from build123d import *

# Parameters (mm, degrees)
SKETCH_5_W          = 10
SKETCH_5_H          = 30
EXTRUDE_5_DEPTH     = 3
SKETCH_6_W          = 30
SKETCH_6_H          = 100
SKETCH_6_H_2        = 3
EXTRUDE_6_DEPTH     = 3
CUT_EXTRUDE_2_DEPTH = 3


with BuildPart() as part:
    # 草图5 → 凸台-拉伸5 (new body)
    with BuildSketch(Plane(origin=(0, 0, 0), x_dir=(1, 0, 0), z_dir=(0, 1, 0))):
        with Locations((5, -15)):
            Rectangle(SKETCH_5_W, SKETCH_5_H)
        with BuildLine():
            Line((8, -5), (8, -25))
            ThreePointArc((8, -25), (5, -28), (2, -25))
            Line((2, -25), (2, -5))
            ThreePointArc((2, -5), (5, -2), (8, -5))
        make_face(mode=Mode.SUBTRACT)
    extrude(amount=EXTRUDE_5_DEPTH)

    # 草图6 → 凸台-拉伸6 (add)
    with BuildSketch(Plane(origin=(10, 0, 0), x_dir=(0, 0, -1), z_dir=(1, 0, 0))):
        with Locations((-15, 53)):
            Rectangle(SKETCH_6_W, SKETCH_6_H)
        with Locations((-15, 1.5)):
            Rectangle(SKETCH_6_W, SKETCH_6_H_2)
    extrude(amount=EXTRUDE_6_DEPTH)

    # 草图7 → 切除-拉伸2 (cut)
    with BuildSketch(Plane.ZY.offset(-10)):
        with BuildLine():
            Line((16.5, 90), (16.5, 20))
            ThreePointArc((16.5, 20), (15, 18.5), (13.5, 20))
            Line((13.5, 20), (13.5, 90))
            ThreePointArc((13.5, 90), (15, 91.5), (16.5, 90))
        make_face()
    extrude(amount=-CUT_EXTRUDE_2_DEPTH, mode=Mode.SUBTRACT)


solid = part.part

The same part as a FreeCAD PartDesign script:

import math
import FreeCAD as App
import Part
import Sketcher
from FreeCAD import Vector
Q = App.Units.Quantity


def add_polygon(sketch, points):
    """Adds a closed chain of lines whose ends are joined by coincident constraints."""
    first, n = sketch.GeometryCount, len(points)
    for a, b in zip(points, points[1:] + points[:1]):
        sketch.addGeometry(Part.LineSegment(App.Vector(*a, 0), App.Vector(*b, 0)), False)
    for i in range(n):
        sketch.addConstraint(Sketcher.Constraint("Coincident", first + i, 2, first + (i + 1) % n, 1))

doc = App.newDocument("Part")
params = doc.addObject("Spreadsheet::Sheet", "Params")
for row, (alias, value) in enumerate([
    ("sketch1_radius", "3 mm"),
    ("sketch1_width", "10 mm"),
    ("sketch1_height", "30 mm"),
    ("sketch1_height2", "20 mm"),
    ("pad1_length", "3 mm"),
    ("sketch2_width", "103 mm"),
    ("sketch2_height", "30 mm"),
    ("pad2_length", "3 mm"),
    ("sketch3_radius", "1.5 mm"),
    ("sketch3_width", "70 mm"),
    ("pocket1_length", "3 mm"),
], start=1):
    params.set(f"A{row}", alias)
    params.set(f"B{row}", "=" + value)
    params.setAlias(f"B{row}", alias)

body = doc.addObject("PartDesign::Body", "Body")

# Sketch on XZ plane
sketch1 = body.newObject("Sketcher::SketchObject", "Sketch")
sketch1.AttachmentSupport = (doc.getObject("XZ_Plane"), [""])
sketch1.MapMode = "FlatFace"
add_polygon(sketch1, [(0, 0), (0, 30), (10, 30), (10, 0)])  # lines 0-3
sketch1.addGeometry(Part.ArcOfCircle(Part.Circle(Vector(5, 5, 0), Vector(0, 0, 1), 3), math.radians(180), math.radians(360)), False)  # 4
sketch1.addGeometry(Part.LineSegment(Vector(8, 5, 0), Vector(8, 25, 0)), False)  # 5
sketch1.addGeometry(Part.ArcOfCircle(Part.Circle(Vector(5, 25, 0), Vector(0, 0, 1), 3), math.radians(0), math.radians(180)), False)  # 6
sketch1.addGeometry(Part.LineSegment(Vector(2, 25, 0), Vector(2, 5, 0)), False)  # 7
sketch1.addConstraint([
    Sketcher.Constraint("Tangent", 4, 2, 5, 1),
    Sketcher.Constraint("Tangent", 5, 2, 6, 1),
    Sketcher.Constraint("Tangent", 6, 2, 7, 1),
    Sketcher.Constraint("Tangent", 7, 2, 4, 1),
    Sketcher.Constraint("Vertical", 0),
    Sketcher.Constraint("Horizontal", 1),
    Sketcher.Constraint("Vertical", 2),
    Sketcher.Constraint("Horizontal", 3),
    Sketcher.Constraint("Vertical", 5),
    Sketcher.Constraint("Vertical", 7),
    Sketcher.Constraint("Coincident", 3, 2, -1, 1),
    Sketcher.Constraint("Radius", 4, Q("3 mm")),
    Sketcher.Constraint("DistanceX", 1, 1, 1, 2, Q("10 mm")),
    Sketcher.Constraint("DistanceY", 0, 1, 0, 2, Q("30 mm")),
    Sketcher.Constraint("DistanceY", 5, 1, 5, 2, Q("20 mm")),
    Sketcher.Constraint("DistanceX", -1, 1, 4, 3, Q("5 mm")),
    Sketcher.Constraint("DistanceY", -1, 1, 4, 3, Q("5 mm")),
])
sketch1.setExpression("Constraints[15]", "Params.sketch1_radius")
sketch1.setExpression("Constraints[16]", "Params.sketch1_width")
sketch1.setExpression("Constraints[17]", "Params.sketch1_height")
sketch1.setExpression("Constraints[18]", "Params.sketch1_height2")
pad1 = body.newObject("PartDesign::Pad", "Pad")
pad1.Profile = sketch1
pad1.setExpression("Length", "Params.pad1_length")
pad1.Reversed = True

# Sketch on YZ plane
sketch2 = body.newObject("Sketcher::SketchObject", "Sketch001")
sketch2.AttachmentSupport = (doc.getObject("YZ_Plane"), [""])
sketch2.MapMode = "FlatFace"
sketch2.AttachmentOffset = App.Placement(Vector(0, 0, 10), App.Rotation())
add_polygon(sketch2, [(103, 30), (0, 30), (0, 0), (103, 0)])  # lines 0-3
sketch2.addConstraint([
    Sketcher.Constraint("Horizontal", 0),
    Sketcher.Constraint("Vertical", 1),
    Sketcher.Constraint("Horizontal", 2),
    Sketcher.Constraint("Vertical", 3),
    Sketcher.Constraint("Coincident", 1, 2, -1, 1),
    Sketcher.Constraint("DistanceX", 0, 2, 0, 1, Q("103 mm")),
    Sketcher.Constraint("DistanceY", 1, 2, 1, 1, Q("30 mm")),
])
sketch2.setExpression("Constraints[9]", "Params.sketch2_width")
sketch2.setExpression("Constraints[10]", "Params.sketch2_height")
pad2 = body.newObject("PartDesign::Pad", "Pad001")
pad2.Profile = sketch2
pad2.setExpression("Length", "Params.pad2_length")

# Sketch on YZ plane
sketch3 = body.newObject("Sketcher::SketchObject", "Sketch002")
sketch3.AttachmentSupport = (doc.getObject("YZ_Plane"), [""])
sketch3.MapMode = "FlatFace"
sketch3.AttachmentOffset = App.Placement(Vector(0, 0, 10), App.Rotation())
sketch3.addGeometry([
    Part.LineSegment(Vector(20, 16.5, 0), Vector(90, 16.5, 0)),
    Part.ArcOfCircle(Part.Circle(Vector(90, 15, 0), Vector(0, 0, 1), 1.5), math.radians(-90), math.radians(90)),
    Part.LineSegment(Vector(90, 13.5, 0), Vector(20, 13.5, 0)),
    Part.ArcOfCircle(Part.Circle(Vector(20, 15, 0), Vector(0, 0, 1), 1.5), math.radians(90), math.radians(270)),
], False)
sketch3.addConstraint([
    Sketcher.Constraint("Tangent", 0, 2, 1, 2),
    Sketcher.Constraint("Tangent", 1, 1, 2, 1),
    Sketcher.Constraint("Tangent", 2, 2, 3, 2),
    Sketcher.Constraint("Tangent", 3, 1, 0, 1),
    Sketcher.Constraint("Horizontal", 0),
    Sketcher.Constraint("Horizontal", 2),
    Sketcher.Constraint("Radius", 1, Q("1.5 mm")),
    Sketcher.Constraint("DistanceX", 0, 1, 0, 2, Q("70 mm")),
    Sketcher.Constraint("DistanceX", -1, 1, 1, 3, Q("90 mm")),
    Sketcher.Constraint("DistanceY", -1, 1, 1, 3, Q("15 mm")),
])
sketch3.setExpression("Constraints[6]", "Params.sketch3_radius")
sketch3.setExpression("Constraints[7]", "Params.sketch3_width")
pocket1 = body.newObject("PartDesign::Pocket", "Pocket")
pocket1.Profile = sketch3
pocket1.setExpression("Length", "Params.pocket1_length")
pocket1.Reversed = True

doc.recompute()
